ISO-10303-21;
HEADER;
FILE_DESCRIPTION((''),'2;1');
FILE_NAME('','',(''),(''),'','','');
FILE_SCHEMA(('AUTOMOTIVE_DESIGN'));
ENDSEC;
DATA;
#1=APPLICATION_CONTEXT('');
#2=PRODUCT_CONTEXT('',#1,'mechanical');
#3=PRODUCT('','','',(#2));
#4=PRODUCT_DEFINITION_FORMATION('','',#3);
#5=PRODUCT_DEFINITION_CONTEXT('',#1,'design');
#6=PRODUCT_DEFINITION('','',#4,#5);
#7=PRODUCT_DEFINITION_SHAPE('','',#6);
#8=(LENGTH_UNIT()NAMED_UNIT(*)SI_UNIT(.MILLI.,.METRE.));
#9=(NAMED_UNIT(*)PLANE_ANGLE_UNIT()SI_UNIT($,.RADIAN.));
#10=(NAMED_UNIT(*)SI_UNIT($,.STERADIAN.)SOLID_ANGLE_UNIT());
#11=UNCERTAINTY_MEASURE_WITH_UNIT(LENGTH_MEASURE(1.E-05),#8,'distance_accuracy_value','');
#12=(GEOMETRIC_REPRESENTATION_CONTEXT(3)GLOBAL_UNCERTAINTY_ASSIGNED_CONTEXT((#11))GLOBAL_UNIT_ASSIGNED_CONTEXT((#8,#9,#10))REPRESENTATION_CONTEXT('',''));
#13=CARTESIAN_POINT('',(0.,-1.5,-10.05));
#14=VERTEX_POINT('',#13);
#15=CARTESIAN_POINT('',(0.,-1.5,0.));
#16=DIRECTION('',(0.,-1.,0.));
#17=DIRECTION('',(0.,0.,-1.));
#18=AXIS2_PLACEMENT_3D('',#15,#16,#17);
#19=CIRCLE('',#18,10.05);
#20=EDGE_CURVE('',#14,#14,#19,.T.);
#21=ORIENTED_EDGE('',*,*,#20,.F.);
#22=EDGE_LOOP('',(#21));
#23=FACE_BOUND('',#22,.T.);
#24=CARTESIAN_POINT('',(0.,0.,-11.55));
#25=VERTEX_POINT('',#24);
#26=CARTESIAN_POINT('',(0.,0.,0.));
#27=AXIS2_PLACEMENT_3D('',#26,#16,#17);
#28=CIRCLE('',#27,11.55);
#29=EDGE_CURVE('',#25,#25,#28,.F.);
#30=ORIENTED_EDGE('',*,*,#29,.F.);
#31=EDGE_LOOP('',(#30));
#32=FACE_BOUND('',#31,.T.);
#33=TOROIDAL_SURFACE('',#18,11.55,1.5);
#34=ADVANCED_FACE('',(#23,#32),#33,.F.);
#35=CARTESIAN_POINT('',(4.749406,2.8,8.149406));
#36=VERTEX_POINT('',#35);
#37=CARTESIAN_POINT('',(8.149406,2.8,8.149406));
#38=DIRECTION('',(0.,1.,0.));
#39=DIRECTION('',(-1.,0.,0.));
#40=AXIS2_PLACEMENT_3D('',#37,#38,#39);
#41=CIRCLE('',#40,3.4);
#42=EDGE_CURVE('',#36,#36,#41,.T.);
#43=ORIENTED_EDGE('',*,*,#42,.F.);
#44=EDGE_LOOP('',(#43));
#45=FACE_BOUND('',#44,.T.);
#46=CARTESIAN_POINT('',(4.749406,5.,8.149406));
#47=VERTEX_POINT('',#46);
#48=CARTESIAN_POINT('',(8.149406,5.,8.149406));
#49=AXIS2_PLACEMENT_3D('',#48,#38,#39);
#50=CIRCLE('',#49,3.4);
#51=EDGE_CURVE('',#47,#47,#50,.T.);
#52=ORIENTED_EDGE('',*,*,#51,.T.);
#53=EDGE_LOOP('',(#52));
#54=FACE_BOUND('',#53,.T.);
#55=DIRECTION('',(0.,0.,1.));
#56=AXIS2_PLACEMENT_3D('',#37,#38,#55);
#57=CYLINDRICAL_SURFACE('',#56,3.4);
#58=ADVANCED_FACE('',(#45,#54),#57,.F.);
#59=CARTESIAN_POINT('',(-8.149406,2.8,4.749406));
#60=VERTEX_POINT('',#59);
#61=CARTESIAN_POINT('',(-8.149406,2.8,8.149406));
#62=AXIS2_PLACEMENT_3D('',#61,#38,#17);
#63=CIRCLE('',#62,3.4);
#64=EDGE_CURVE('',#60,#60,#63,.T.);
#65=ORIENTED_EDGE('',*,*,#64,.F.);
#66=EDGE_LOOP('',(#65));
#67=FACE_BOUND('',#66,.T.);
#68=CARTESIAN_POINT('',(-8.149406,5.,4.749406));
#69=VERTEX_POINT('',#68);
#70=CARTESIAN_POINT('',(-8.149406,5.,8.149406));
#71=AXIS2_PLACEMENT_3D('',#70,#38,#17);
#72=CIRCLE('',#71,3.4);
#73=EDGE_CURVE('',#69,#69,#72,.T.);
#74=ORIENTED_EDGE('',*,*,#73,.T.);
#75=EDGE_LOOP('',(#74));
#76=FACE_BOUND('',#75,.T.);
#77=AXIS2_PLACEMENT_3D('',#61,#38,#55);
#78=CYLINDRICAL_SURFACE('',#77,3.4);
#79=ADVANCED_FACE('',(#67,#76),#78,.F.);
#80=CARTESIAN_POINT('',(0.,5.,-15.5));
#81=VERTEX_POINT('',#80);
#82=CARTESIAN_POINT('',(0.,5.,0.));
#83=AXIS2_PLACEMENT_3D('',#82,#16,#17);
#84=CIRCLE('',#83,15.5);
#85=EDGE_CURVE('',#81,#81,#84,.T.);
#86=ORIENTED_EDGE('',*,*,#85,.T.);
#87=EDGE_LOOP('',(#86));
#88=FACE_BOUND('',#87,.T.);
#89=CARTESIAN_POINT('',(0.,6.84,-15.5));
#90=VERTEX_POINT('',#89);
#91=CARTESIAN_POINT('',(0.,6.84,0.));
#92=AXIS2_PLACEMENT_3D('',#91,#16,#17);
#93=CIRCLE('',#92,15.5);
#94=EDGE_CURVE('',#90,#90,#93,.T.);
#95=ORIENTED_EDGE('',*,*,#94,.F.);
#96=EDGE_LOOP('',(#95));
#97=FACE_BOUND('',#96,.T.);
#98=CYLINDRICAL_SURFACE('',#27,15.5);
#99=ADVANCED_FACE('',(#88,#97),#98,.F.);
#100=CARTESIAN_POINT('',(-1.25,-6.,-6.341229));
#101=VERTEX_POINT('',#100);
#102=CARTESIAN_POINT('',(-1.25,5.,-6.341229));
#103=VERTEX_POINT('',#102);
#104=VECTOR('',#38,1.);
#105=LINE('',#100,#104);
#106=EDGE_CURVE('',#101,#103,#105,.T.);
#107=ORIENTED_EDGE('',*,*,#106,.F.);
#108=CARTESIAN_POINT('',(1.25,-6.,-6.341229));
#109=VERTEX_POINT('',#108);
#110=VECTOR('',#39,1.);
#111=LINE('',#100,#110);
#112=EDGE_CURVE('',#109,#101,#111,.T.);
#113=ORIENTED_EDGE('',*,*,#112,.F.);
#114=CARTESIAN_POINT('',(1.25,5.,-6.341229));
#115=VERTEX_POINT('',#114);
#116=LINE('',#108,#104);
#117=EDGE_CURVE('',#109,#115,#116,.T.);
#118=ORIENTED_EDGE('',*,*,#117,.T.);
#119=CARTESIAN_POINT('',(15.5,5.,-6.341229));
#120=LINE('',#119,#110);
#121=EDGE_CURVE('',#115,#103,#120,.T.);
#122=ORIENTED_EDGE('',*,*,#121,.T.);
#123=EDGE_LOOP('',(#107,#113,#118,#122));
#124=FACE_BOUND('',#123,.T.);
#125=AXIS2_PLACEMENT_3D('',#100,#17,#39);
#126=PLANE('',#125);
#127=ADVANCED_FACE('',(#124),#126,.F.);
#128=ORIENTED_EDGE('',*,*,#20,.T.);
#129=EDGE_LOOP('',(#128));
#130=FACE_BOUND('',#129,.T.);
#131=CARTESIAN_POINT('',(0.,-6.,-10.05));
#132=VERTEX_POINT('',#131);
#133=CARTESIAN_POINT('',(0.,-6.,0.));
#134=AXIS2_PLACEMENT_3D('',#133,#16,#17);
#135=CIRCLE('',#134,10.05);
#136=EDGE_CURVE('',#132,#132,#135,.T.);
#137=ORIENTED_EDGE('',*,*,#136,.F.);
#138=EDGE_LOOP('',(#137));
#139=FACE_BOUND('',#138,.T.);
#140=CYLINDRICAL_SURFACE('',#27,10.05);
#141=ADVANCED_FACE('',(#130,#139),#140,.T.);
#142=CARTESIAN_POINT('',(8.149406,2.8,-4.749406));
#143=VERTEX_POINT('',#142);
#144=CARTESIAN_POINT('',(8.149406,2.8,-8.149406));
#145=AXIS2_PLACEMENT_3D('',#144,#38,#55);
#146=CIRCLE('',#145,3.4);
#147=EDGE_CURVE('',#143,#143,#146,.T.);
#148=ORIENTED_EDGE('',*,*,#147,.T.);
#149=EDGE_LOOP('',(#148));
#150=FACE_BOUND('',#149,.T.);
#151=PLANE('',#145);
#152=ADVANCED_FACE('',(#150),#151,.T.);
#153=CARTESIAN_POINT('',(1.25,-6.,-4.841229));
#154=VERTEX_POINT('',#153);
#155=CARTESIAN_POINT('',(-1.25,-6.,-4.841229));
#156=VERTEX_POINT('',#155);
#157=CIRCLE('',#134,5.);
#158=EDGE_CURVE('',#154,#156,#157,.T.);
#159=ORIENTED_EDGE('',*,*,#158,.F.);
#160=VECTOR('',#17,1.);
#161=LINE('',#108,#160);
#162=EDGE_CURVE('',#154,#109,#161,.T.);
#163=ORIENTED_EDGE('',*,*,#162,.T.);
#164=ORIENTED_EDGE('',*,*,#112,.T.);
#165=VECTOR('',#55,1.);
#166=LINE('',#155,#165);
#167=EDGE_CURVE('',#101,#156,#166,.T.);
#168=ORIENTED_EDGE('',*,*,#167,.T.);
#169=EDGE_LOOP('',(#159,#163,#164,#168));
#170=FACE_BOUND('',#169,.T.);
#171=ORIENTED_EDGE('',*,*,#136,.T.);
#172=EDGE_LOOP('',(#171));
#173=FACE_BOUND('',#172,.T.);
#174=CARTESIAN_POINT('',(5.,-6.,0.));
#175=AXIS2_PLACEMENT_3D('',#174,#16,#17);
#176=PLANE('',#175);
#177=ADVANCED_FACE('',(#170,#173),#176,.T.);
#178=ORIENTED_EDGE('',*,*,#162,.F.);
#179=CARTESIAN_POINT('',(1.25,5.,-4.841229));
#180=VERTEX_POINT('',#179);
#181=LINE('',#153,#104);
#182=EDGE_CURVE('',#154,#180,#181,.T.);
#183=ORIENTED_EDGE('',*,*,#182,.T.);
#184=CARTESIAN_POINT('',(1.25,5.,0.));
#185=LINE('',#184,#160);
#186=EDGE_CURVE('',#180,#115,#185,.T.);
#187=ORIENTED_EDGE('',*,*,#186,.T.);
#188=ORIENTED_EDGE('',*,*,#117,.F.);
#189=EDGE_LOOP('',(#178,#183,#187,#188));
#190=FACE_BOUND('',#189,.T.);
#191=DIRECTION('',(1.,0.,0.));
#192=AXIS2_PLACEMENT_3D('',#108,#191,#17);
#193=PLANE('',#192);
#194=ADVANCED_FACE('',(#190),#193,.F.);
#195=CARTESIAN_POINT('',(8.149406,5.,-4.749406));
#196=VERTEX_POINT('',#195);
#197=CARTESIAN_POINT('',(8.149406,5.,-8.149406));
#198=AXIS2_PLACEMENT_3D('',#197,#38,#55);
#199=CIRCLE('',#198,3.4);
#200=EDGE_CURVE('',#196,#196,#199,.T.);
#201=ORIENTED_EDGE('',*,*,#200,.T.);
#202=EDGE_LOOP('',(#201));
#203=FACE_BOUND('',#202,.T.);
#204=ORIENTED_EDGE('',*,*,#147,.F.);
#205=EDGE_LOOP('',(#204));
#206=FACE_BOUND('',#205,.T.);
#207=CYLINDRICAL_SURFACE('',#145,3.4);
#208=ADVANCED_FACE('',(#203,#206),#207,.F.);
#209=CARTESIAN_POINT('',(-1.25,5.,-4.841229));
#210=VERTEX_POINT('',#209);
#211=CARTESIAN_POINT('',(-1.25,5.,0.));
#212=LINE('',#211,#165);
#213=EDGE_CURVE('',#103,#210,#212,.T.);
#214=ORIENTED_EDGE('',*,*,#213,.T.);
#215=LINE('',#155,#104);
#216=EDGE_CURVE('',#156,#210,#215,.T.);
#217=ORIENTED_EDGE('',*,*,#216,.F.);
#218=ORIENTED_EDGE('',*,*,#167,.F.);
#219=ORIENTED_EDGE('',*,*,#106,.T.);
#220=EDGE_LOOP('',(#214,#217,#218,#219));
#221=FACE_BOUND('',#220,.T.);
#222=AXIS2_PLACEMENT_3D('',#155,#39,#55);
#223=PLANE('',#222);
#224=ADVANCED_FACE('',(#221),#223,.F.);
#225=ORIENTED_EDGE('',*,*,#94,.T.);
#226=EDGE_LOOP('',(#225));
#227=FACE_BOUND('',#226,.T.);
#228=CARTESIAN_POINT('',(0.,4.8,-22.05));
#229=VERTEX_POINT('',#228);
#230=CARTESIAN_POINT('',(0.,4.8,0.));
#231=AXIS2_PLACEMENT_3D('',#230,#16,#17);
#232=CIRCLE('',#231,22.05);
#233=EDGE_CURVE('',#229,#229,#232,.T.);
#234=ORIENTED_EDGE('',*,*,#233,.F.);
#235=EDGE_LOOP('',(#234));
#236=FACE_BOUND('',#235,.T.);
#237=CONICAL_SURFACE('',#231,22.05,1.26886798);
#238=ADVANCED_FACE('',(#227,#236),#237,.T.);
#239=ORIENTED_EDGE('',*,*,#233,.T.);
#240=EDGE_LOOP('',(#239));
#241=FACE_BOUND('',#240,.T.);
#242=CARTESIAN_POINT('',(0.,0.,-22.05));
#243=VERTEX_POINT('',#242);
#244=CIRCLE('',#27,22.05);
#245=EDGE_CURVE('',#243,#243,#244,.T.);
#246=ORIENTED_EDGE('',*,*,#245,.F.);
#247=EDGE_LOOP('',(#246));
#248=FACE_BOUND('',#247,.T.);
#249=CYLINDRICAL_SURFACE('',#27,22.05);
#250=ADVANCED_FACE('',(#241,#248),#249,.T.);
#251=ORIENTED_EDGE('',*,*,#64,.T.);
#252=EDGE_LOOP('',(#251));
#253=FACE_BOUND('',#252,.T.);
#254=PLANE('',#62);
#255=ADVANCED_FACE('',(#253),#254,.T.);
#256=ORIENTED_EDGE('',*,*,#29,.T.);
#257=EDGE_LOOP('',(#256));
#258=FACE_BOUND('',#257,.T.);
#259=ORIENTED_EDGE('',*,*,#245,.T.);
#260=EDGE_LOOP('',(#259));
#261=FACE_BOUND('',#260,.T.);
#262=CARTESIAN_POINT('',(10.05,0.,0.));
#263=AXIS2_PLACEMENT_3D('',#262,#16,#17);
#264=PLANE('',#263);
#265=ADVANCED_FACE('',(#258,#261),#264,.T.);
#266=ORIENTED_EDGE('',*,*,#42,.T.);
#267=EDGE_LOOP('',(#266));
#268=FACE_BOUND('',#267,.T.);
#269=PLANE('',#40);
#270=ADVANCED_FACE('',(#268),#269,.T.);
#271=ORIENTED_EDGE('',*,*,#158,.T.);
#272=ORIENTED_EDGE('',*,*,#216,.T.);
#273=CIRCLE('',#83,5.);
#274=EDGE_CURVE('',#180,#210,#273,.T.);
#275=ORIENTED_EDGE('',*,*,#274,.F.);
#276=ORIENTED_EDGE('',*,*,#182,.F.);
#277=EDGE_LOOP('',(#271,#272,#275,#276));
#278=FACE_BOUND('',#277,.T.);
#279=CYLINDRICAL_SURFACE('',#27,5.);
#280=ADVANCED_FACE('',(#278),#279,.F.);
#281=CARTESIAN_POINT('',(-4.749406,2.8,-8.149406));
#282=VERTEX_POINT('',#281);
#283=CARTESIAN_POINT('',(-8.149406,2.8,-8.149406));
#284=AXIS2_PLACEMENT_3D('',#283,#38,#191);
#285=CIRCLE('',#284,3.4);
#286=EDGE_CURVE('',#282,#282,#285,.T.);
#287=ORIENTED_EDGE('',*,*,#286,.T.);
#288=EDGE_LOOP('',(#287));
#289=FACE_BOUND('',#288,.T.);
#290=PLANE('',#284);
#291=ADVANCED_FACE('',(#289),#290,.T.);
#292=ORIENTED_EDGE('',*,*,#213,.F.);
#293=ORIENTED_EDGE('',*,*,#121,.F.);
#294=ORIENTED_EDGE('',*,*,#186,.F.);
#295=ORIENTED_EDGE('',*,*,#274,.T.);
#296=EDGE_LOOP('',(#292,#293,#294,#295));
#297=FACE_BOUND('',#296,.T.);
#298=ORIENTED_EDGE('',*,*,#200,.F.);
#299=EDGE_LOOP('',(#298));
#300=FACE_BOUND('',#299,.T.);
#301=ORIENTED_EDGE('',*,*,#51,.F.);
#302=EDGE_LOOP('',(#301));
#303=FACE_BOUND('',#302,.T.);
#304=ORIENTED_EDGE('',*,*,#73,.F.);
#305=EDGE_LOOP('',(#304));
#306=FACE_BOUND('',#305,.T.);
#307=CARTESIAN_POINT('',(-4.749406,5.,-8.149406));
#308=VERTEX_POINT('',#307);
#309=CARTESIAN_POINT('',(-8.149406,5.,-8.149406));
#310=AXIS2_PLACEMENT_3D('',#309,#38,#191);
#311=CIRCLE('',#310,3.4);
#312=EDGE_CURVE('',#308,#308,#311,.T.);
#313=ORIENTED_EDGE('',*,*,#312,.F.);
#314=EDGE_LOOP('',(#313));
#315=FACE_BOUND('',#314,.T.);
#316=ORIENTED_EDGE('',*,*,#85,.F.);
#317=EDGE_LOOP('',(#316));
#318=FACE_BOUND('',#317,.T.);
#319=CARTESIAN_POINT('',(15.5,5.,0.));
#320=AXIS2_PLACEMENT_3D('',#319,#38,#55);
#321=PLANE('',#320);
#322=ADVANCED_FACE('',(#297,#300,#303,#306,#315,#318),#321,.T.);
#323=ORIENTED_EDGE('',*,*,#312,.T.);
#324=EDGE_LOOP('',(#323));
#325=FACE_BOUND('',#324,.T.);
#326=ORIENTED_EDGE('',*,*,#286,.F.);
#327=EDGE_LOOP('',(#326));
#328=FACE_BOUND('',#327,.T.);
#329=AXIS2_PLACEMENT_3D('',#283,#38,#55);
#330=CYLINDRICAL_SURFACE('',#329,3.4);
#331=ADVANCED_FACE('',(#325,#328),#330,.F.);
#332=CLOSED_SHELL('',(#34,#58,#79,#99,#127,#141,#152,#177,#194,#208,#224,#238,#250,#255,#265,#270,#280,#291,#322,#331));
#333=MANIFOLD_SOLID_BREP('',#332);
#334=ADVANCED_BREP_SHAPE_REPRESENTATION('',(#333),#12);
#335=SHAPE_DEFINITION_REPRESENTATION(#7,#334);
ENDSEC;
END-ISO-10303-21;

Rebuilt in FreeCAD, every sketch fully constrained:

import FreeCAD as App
import Part
import Sketcher

V = App.Vector


def edges_at(feature, points):
    """Names of the edges that pass closest to the given points."""
    edges = feature.Shape.Edges
    near = lambda p: min(range(len(edges)), key=lambda i: edges[i].distToShape(Part.Vertex(*p))[0])
    return sorted({f"Edge{near(p) + 1}" for p in points})

doc = App.newDocument("Part")
params = doc.addObject("Spreadsheet::Sheet", "Params")
for row, (alias, value) in enumerate([
    ("sketch1_width", "12 mm"),
    ("sketch1_height", "6 mm"),
    ("sketch1_height2", "11 mm"),
    ("sketch1_width2", "10.5 mm"),
    ("sketch1_height3", "4.8 mm"),
    ("revolution_angle", "360 deg"),
    ("fillet_radius", "1.5 mm"),
    ("sketch2_width", "2.5 mm"),
    ("sketch2_height", "1.5 mm"),
    ("sketch3_diameter", "6.8 mm"),
    ("pocket2_length", "2.2 mm"),
], start=1):
    params.set(f"A{row}", alias)
    params.set(f"B{row}", "=" + value)
    params.setAlias(f"B{row}", alias)

body = doc.addObject("PartDesign::Body", "Body")

# Sketch on XY plane
sketch1 = body.newObject("Sketcher::SketchObject", "Sketch")
sketch1.AttachmentSupport = (doc.getObject("XY_Plane"), [""])
sketch1.MapMode = "FlatFace"
sketch1.addGeometry([
    Part.LineSegment(V(5, -6, 0), V(10.05, -6, 0)),  # 0
    Part.LineSegment(V(10.05, -6, 0), V(10.05, 0, 0)),  # 1
    Part.LineSegment(V(10.05, 0, 0), V(22.05, 0, 0)),  # 2
    Part.LineSegment(V(22.05, 0, 0), V(22.05, 4.8, 0)),  # 3
    Part.LineSegment(V(22.05, 4.8, 0), V(15.5, 6.84, 0)),  # 4
    Part.LineSegment(V(15.5, 6.84, 0), V(15.5, 5, 0)),  # 5
    Part.LineSegment(V(15.5, 5, 0), V(5, 5, 0)),  # 6
    Part.LineSegment(V(5, 5, 0), V(5, -6, 0)),  # 7
], False)
sketch1.addConstraint([
    Sketcher.Constraint("Coincident", 0, 2, 1, 1),
    Sketcher.Constraint("Coincident", 1, 2, 2, 1),
    Sketcher.Constraint("Coincident", 2, 2, 3, 1),
    Sketcher.Constraint("Coincident", 3, 2, 4, 1),
    Sketcher.Constraint("Coincident", 4, 2, 5, 1),
    Sketcher.Constraint("Coincident", 5, 2, 6, 1),
    Sketcher.Constraint("Coincident", 6, 2, 7, 1),
    Sketcher.Constraint("Coincident", 7, 2, 0, 1),
    Sketcher.Constraint("Horizontal", 0),
    Sketcher.Constraint("Vertical", 1),
    Sketcher.Constraint("Horizontal", 2),
    Sketcher.Constraint("Vertical", 3),
    Sketcher.Constraint("Vertical", 5),
    Sketcher.Constraint("Horizontal", 6),
    Sketcher.Constraint("Vertical", 7),
    Sketcher.Constraint("PointOnObject", 1, 2, -1),
    Sketcher.Constraint("DistanceX", 2, 1, 2, 2, 12.0),
    Sketcher.Constraint("DistanceY", 1, 1, 1, 2, 6.0),
    Sketcher.Constraint("DistanceY", 7, 2, 7, 1, 11.0),
    Sketcher.Constraint("DistanceX", 6, 2, 6, 1, 10.5),
    Sketcher.Constraint("DistanceY", 3, 1, 3, 2, 4.8),
    Sketcher.Constraint("DistanceX", -1, 1, 6, 2, 5.0),
    Sketcher.Constraint("DistanceX", 0, 1, 0, 2, 5.05),
    Sketcher.Constraint("DistanceY", 5, 2, 5, 1, 1.84),
])
sketch1.setExpression("Constraints[16]", "Params.sketch1_width")
sketch1.setExpression("Constraints[17]", "Params.sketch1_height")
sketch1.setExpression("Constraints[18]", "Params.sketch1_height2")
sketch1.setExpression("Constraints[19]", "Params.sketch1_width2")
sketch1.setExpression("Constraints[20]", "Params.sketch1_height3")
revolution = body.newObject("PartDesign::Revolution", "Revolution")
revolution.Profile = sketch1
revolution.ReferenceAxis = (sketch1, ["V_Axis"])
revolution.setExpression("Angle", "Params.revolution_angle")
doc.recompute()

fillet = body.newObject("PartDesign::Fillet", "Fillet")
fillet.Base = (revolution, edges_at(revolution, [(-10.05, 0, 0)]))
fillet.setExpression("Radius", "Params.fillet_radius")

# Sketch on XZ plane
sketch2 = body.newObject("Sketcher::SketchObject", "Sketch001")
sketch2.AttachmentSupport = (doc.getObject("XZ_Plane"), [""])
sketch2.MapMode = "FlatFace"
sketch2.addGeometry([
    Part.LineSegment(V(-1.25, -6.341229, 0), V(-1.25, -4.841229, 0)),
    Part.LineSegment(V(-1.25, -4.841229, 0), V(1.25, -4.841229, 0)),
    Part.LineSegment(V(1.25, -4.841229, 0), V(1.25, -6.341229, 0)),
    Part.LineSegment(V(1.25, -6.341229, 0), V(-1.25, -6.341229, 0)),
], False)
sketch2.addConstraint([
    Sketcher.Constraint("Coincident", 0, 2, 1, 1),
    Sketcher.Constraint("Coincident", 1, 2, 2, 1),
    Sketcher.Constraint("Coincident", 2, 2, 3, 1),
    Sketcher.Constraint("Coincident", 3, 2, 0, 1),
    Sketcher.Constraint("Vertical", 0),
    Sketcher.Constraint("Horizontal", 1),
    Sketcher.Constraint("Vertical", 2),
    Sketcher.Constraint("Horizontal", 3),
    Sketcher.Constraint("DistanceX", 1, 1, 1, 2, 2.5),
    Sketcher.Constraint("DistanceY", 0, 1, 0, 2, 1.5),
    Sketcher.Constraint("DistanceX", 0, 2, -1, 1, 1.25),
    Sketcher.Constraint("DistanceY", 0, 2, -1, 1, 4.841229),
])
sketch2.setExpression("Constraints[8]", "Params.sketch2_width")
sketch2.setExpression("Constraints[9]", "Params.sketch2_height")
pocket1 = body.newObject("PartDesign::Pocket", "Pocket")
pocket1.Profile = sketch2
pocket1.Type = "ThroughAll"
pocket1.Midplane = True

# Sketch on XZ plane
sketch3 = body.newObject("Sketcher::SketchObject", "Sketch002")
sketch3.AttachmentSupport = (doc.getObject("XZ_Plane"), [""])
sketch3.MapMode = "FlatFace"
sketch3.AttachmentOffset = App.Placement(V(0, 0, -5), App.Rotation())
sketch3.addGeometry(Part.Circle(V(8.149406, -8.149406, 0), V(0, 0, 1), 3.4), False)
sketch3.addConstraint([
    Sketcher.Constraint("Diameter", 0, 6.8),
    Sketcher.Constraint("DistanceX", -1, 1, 0, 3, 8.149406),
    Sketcher.Constraint("DistanceY", 0, 3, -1, 1, 8.149406),
])
sketch3.setExpression("Constraints[0]", "Params.sketch3_diameter")
pocket2 = body.newObject("PartDesign::Pocket", "Pocket001")
pocket2.Profile = sketch3
pocket2.setExpression("Length", "Params.pocket2_length")
pocket2.Reversed = True
doc.recompute()

polarpattern = body.newObject("PartDesign::PolarPattern", "PolarPattern")
polarpattern.Originals = [pocket2]
polarpattern.Axis = (doc.getObject("Y_Axis"), [""])
polarpattern.Angle = 360
polarpattern.Occurrences = 4
body.Tip = polarpattern

doc.recompute()
